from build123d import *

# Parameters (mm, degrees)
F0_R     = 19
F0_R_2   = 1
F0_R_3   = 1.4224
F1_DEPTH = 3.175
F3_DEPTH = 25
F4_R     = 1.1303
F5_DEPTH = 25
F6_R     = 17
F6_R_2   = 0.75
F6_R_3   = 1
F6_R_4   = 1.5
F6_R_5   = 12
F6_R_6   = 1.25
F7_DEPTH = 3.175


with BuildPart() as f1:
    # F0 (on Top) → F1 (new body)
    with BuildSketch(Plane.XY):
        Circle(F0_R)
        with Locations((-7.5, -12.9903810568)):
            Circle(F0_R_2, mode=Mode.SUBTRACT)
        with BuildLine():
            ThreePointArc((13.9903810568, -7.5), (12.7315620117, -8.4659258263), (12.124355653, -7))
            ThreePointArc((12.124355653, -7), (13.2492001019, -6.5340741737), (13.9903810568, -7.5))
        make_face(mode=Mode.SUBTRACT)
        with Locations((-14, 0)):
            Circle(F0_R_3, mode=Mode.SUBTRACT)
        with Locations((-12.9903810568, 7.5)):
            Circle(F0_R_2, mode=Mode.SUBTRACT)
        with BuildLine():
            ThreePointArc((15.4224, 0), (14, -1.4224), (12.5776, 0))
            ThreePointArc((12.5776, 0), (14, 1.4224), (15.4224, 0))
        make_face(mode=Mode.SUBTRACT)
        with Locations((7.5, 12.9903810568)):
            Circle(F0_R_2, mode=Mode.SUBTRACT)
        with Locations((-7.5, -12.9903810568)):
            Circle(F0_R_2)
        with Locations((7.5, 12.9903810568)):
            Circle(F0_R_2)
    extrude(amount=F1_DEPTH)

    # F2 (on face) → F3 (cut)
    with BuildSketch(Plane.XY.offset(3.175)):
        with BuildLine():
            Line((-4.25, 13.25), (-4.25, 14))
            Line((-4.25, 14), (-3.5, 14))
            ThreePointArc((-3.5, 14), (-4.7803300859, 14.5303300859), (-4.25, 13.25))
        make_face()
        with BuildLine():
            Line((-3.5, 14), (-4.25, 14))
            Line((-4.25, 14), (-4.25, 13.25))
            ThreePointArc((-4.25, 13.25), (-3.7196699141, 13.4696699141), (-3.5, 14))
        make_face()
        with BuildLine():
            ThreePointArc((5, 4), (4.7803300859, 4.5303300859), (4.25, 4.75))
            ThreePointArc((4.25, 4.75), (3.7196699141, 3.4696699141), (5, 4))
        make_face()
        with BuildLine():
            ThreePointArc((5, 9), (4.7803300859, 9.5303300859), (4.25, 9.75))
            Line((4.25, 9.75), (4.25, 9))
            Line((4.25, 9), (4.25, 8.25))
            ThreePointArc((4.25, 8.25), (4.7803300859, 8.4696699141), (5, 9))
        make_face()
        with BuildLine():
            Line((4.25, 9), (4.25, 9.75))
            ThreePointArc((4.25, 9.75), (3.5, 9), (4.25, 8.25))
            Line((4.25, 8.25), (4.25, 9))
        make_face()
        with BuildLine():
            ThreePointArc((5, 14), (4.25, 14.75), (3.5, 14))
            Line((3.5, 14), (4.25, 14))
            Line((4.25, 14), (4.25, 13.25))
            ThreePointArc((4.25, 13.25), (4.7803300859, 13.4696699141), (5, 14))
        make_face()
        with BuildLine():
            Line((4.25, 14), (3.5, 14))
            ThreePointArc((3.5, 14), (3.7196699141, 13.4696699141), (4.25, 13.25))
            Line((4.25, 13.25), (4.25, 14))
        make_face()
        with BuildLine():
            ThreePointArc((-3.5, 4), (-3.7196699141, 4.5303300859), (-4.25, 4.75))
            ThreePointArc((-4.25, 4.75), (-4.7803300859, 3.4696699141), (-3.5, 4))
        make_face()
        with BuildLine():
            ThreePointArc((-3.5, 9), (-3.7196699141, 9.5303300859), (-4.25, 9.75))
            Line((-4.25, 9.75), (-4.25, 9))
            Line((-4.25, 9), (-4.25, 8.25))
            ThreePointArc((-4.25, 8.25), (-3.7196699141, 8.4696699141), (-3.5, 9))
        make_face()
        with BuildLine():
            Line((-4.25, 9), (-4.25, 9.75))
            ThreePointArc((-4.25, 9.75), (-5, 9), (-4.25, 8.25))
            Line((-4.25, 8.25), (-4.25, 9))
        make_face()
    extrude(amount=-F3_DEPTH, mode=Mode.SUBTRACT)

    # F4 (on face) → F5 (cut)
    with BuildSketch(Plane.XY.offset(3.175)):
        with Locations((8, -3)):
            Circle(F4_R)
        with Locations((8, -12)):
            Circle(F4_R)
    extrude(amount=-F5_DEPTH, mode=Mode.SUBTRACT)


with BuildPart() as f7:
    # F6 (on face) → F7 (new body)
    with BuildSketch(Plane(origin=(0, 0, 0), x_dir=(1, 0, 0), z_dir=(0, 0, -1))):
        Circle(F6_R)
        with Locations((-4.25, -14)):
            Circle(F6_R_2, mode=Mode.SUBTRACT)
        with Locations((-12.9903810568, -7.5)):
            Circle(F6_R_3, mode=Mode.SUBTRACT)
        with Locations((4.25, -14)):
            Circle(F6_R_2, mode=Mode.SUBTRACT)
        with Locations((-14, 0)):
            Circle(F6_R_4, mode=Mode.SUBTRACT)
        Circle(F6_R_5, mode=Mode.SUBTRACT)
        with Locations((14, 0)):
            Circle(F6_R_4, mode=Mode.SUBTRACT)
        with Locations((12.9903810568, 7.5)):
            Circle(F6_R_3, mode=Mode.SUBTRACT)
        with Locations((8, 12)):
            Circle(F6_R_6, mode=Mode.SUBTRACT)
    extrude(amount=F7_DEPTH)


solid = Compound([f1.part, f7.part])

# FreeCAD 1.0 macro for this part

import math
import FreeCAD as App
import Part
import Sketcher
Q = App.Units.Quantity

doc = App.newDocument("Part")
body = doc.addObject("PartDesign::Body", "Body")

# Sketch on XY plane
sketch1 = body.newObject("Sketcher::SketchObject", "Sketch")
sketch1.AttachmentSupport = (doc.getObject("XY_Plane"), [""])
sketch1.MapMode = "FlatFace"
sketch1.addGeometry(Part.Circle(App.Vector(0, 0, 0), App.Vector(0, 0, 1), 19), False)
sketch1.addGeometry(Part.ArcOfCircle(Part.Circle(App.Vector(13, -7.5, 0), App.Vector(0, 0, 1), 1), math.radians(0), math.radians(150)), False)
sketch1.addGeometry(Part.ArcOfCircle(Part.Circle(App.Vector(13, -7.5, 0), App.Vector(0, 0, 1), 1), math.radians(150), math.radians(360)), False)
sketch1.addGeometry(Part.Circle(App.Vector(-14, 0, 0), App.Vector(0, 0, 1), 1.4), False)
sketch1.addGeometry(Part.Circle(App.Vector(-13, 7.5, 0), App.Vector(0, 0, 1), 1), False)
sketch1.addGeometry(Part.Circle(App.Vector(14, 0, 0), App.Vector(0, 0, 1), 1.4), False)
sketch1.addConstraint(Sketcher.Constraint("Tangent", 1, 1, 2, 2))
sketch1.addConstraint(Sketcher.Constraint("Coincident", 2, 1, 1, 2))
sketch1.addConstraint(Sketcher.Constraint("Coincident", 0, 3, -1, 1))
sketch1.addConstraint(Sketcher.Constraint("Equal", 2, 4))
sketch1.addConstraint(Sketcher.Constraint("Equal", 3, 5))
sketch1.addConstraint(Sketcher.Constraint("Symmetric", 1, 3, 4, 3, -1, 1))
sketch1.addConstraint(Sketcher.Constraint("Symmetric", 3, 3, 5, 3, -1, 1))
sketch1.addConstraint(Sketcher.Constraint("PointOnObject", 3, 3, -1))
sketch1.addConstraint(Sketcher.Constraint("Horizontal", 2, 3, 1, 1))
sketch1.addConstraint(Sketcher.Constraint("Diameter", 0, Q("38 mm")))
sketch1.addConstraint(Sketcher.Constraint("Diameter", 4, Q("2 mm")))
sketch1.addConstraint(Sketcher.Constraint("DistanceX", 3, 3, -1, 1, Q("14 mm")))
sketch1.addConstraint(Sketcher.Constraint("DistanceY", 2, 1, -1, 1, Q("7 mm")))
sketch1.addConstraint(Sketcher.Constraint("DistanceY", 1, 3, 4, 3, Q("15 mm")))
sketch1.addConstraint(Sketcher.Constraint("Diameter", 3, Q("2.8448 mm")))
sketch1.addConstraint(Sketcher.Constraint("DistanceX", -1, 1, 1, 3, Q("12.990381 mm")))
pad1 = body.newObject("PartDesign::Pad", "Pad")
pad1.Profile = sketch1
pad1.Length = 3.175

# Sketch on XY plane
sketch2 = body.newObject("Sketcher::SketchObject", "Sketch001")
sketch2.AttachmentSupport = (doc.getObject("XY_Plane"), [""])
sketch2.MapMode = "FlatFace"
sketch2.AttachmentOffset = App.Placement(App.Vector(0, 0, 3.175), App.Rotation())
sketch2.addGeometry(Part.ArcOfCircle(Part.Circle(App.Vector(-4.2, 14, 0), App.Vector(0, 0, 1), 0.8), math.radians(0), math.radians(270)), False)
sketch2.addGeometry(Part.ArcOfCircle(Part.Circle(App.Vector(-4.2, 14, 0), App.Vector(0, 0, 1), 0.8), math.radians(-90), math.radians(0)), False)
sketch2.addGeometry(Part.ArcOfCircle(Part.Circle(App.Vector(4.2, 4, 0), App.Vector(0, 0, 1), 0.8), math.radians(0), math.radians(90)), False)
sketch2.addGeometry(Part.ArcOfCircle(Part.Circle(App.Vector(4.2, 4, 0), App.Vector(0, 0, 1), 0.8), math.radians(90), math.radians(360)), False)
sketch2.addGeometry(Part.ArcOfCircle(Part.Circle(App.Vector(4.2, 9, 0), App.Vector(0, 0, 1), 0.8), math.radians(0), math.radians(90)), False)
sketch2.addGeometry(Part.ArcOfCircle(Part.Circle(App.Vector(4.2, 9, 0), App.Vector(0, 0, 1), 0.8), math.radians(90), math.radians(270)), False)
sketch2.addGeometry(Part.ArcOfCircle(Part.Circle(App.Vector(4.2, 9, 0), App.Vector(0, 0, 1), 0.8), math.radians(-90), math.radians(0)), False)
sketch2.addGeometry(Part.ArcOfCircle(Part.Circle(App.Vector(4.2, 14, 0), App.Vector(0, 0, 1), 0.8), math.radians(0), math.radians(180)), False)
sketch2.addGeometry(Part.ArcOfCircle(Part.Circle(App.Vector(4.2, 14, 0), App.Vector(0, 0, 1), 0.8), math.radians(180), math.radians(270)), False)
sketch2.addGeometry(Part.ArcOfCircle(Part.Circle(App.Vector(4.2, 14, 0), App.Vector(0, 0, 1), 0.8), math.radians(-90), math.radians(0)), False)
sketch2.addGeometry(Part.ArcOfCircle(Part.Circle(App.Vector(-4.2, 4, 0), App.Vector(0, 0, 1), 0.8), math.radians(0), math.radians(90)), False)
sketch2.addGeometry(Part.ArcOfCircle(Part.Circle(App.Vector(-4.2, 4, 0), App.Vector(0, 0, 1), 0.8), math.radians(90), math.radians(360)), False)
sketch2.addGeometry(Part.ArcOfCircle(Part.Circle(App.Vector(-4.2, 9, 0), App.Vector(0, 0, 1), 0.8), math.radians(0), math.radians(90)), False)
sketch2.addGeometry(Part.ArcOfCircle(Part.Circle(App.Vector(-4.2, 9, 0), App.Vector(0, 0, 1), 0.8), math.radians(90), math.radians(270)), False)
sketch2.addGeometry(Part.ArcOfCircle(Part.Circle(App.Vector(-4.2, 9, 0), App.Vector(0, 0, 1), 0.8), math.radians(-90), math.radians(0)), False)
sketch2.addConstraint(Sketcher.Constraint("Tangent", 0, 1, 1, 2))
sketch2.addConstraint(Sketcher.Constraint("Coincident", 1, 1, 0, 2))
sketch2.addConstraint(Sketcher.Constraint("Tangent", 2, 1, 3, 2))
sketch2.addConstraint(Sketcher.Constraint("Coincident", 3, 1, 2, 2))
sketch2.addConstraint(Sketcher.Constraint("Tangent", 4, 2, 5, 1))
sketch2.addConstraint(Sketcher.Constraint("Tangent", 5, 2, 6, 1))
sketch2.addConstraint(Sketcher.Constraint("Tangent", 6, 2, 4, 1))
sketch2.addConstraint(Sketcher.Constraint("Tangent", 7, 2, 8, 1))
sketch2.addConstraint(Sketcher.Constraint("Tangent", 8, 2, 9, 1))
sketch2.addConstraint(Sketcher.Constraint("Tangent", 9, 2, 7, 1))
sketch2.addConstraint(Sketcher.Constraint("Tangent", 10, 1, 11, 2))
sketch2.addConstraint(Sketcher.Constraint("Coincident", 11, 1, 10, 2))
sketch2.addConstraint(Sketcher.Constraint("Tangent", 12, 2, 13, 1))
sketch2.addConstraint(Sketcher.Constraint("Tangent", 13, 2, 14, 1))
sketch2.addConstraint(Sketcher.Constraint("Tangent", 14, 2, 12, 1))
sketch2.addConstraint(Sketcher.Constraint("Equal", 1, 2))
sketch2.addConstraint(Sketcher.Constraint("Equal", 3, 4))
sketch2.addConstraint(Sketcher.Constraint("Equal", 6, 7))
sketch2.addConstraint(Sketcher.Constraint("Equal", 9, 10))
sketch2.addConstraint(Sketcher.Constraint("Equal", 11, 12))
sketch2.addConstraint(Sketcher.Constraint("Symmetric", 0, 3, 7, 3, -2))
sketch2.addConstraint(Sketcher.Constraint("Symmetric", 2, 3, 10, 3, -2))
sketch2.addConstraint(Sketcher.Constraint("Symmetric", 4, 3, 12, 3, -2))
sketch2.addConstraint(Sketcher.Constraint("Horizontal", 9, 3, 0, 1))
sketch2.addConstraint(Sketcher.Constraint("Horizontal", 11, 3, 2, 1))
sketch2.addConstraint(Sketcher.Constraint("Horizontal", 14, 3, 6, 2))
sketch2.addConstraint(Sketcher.Constraint("Horizontal", 0, 1, 7, 2))
sketch2.addConstraint(Sketcher.Constraint("Horizontal", 7, 2, 9, 2))
sketch2.addConstraint(Sketcher.Constraint("Horizontal", 2, 1, 10, 1))
sketch2.addConstraint(Sketcher.Constraint("Horizontal", 6, 2, 14, 2))
sketch2.addConstraint(Sketcher.Constraint("Vertical", 3, 3, 4, 3))
sketch2.addConstraint(Sketcher.Constraint("Vertical", 6, 3, 7, 3))
sketch2.addConstraint(Sketcher.Constraint("Vertical", 14, 3, 1, 1))
sketch2.addConstraint(Sketcher.Constraint("Vertical", 9, 3, 3, 1))
sketch2.addConstraint(Sketcher.Constraint("Vertical", 3, 1, 4, 2))
sketch2.addConstraint(Sketcher.Constraint("Vertical", 4, 2, 5, 2))
sketch2.addConstraint(Sketcher.Constraint("Vertical", 5, 2, 8, 2))
sketch2.addConstraint(Sketcher.Constraint("Vertical", 1, 1, 11, 1))
sketch2.addConstraint(Sketcher.Constraint("Vertical", 11, 1, 12, 2))
sketch2.addConstraint(Sketcher.Constraint("Vertical", 12, 2, 13, 2))
sketch2.addConstraint(Sketcher.Constraint("Radius", 0, Q("0.75 mm")))
sketch2.addConstraint(Sketcher.Constraint("DistanceY", -1, 1, 0, 3, Q("14 mm")))
sketch2.addConstraint(Sketcher.Constraint("DistanceY", -1, 1, 2, 3, Q("4 mm")))
sketch2.addConstraint(Sketcher.Constraint("DistanceY", -1, 1, 4, 3, Q("9 mm")))
sketch2.addConstraint(Sketcher.Constraint("DistanceX", -1, 1, 2, 1, Q("5 mm")))
pocket1 = body.newObject("PartDesign::Pocket", "Pocket")
pocket1.Profile = sketch2
pocket1.Length = 25

# Sketch on XY plane
sketch3 = body.newObject("Sketcher::SketchObject", "Sketch002")
sketch3.AttachmentSupport = (doc.getObject("XY_Plane"), [""])
sketch3.MapMode = "FlatFace"
sketch3.AttachmentOffset = App.Placement(App.Vector(0, 0, 3.175), App.Rotation())
sketch3.addGeometry(Part.Circle(App.Vector(8, -3, 0), App.Vector(0, 0, 1), 1.1), False)
sketch3.addGeometry(Part.Circle(App.Vector(8, -12, 0), App.Vector(0, 0, 1), 1.1), False)
sketch3.addConstraint(Sketcher.Constraint("Equal", 0, 1))
sketch3.addConstraint(Sketcher.Constraint("Vertical", 0, 3, 1, 3))
sketch3.addConstraint(Sketcher.Constraint("DistanceX", -1, 1, 0, 3, Q("8 mm")))
sketch3.addConstraint(Sketcher.Constraint("DistanceY", 0, 3, -1, 1, Q("3 mm")))
sketch3.addConstraint(Sketcher.Constraint("DistanceY", 1, 3, -1, 1, Q("12 mm")))
sketch3.addConstraint(Sketcher.Constraint("Diameter", 0, Q("2.2606 mm")))
pocket2 = body.newObject("PartDesign::Pocket", "Pocket001")
pocket2.Profile = sketch3
pocket2.Length = 25
body2 = doc.addObject("PartDesign::Body", "Body001")

# Sketch on XY plane
sketch4 = body2.newObject("Sketcher::SketchObject", "Sketch003")
sketch4.AttachmentSupport = (doc.getObject("XY_Plane001"), [""])
sketch4.MapMode = "FlatFace"
sketch4.addGeometry(Part.Circle(App.Vector(0, 0, 0), App.Vector(0, 0, 1), 17), False)
sketch4.addGeometry(Part.Circle(App.Vector(-4.2, 14, 0), App.Vector(0, 0, 1), 0.8), False)
sketch4.addGeometry(Part.Circle(App.Vector(-13, 7.5, 0), App.Vector(0, 0, 1), 1), False)
sketch4.addGeometry(Part.Circle(App.Vector(4.2, 14, 0), App.Vector(0, 0, 1), 0.8), False)
sketch4.addGeometry(Part.Circle(App.Vector(-14, 0, 0), App.Vector(0, 0, 1), 1.5), False)
sketch4.addGeometry(Part.Circle(App.Vector(0, 0, 0), App.Vector(0, 0, 1), 12), False)
sketch4.addGeometry(Part.Circle(App.Vector(14, 0, 0), App.Vector(0, 0, 1), 1.5), False)
sketch4.addGeometry(Part.Circle(App.Vector(13, -7.5, 0), App.Vector(0, 0, 1), 1), False)
sketch4.addGeometry(Part.Circle(App.Vector(8, -12, 0), App.Vector(0, 0, 1), 1.2), False)
sketch4.addConstraint(Sketcher.Constraint("Coincident", 0, 3, -1, 1))
sketch4.addConstraint(Sketcher.Constraint("Coincident", 5, 3, -1, 1))
sketch4.addConstraint(Sketcher.Constraint("Equal", 1, 3))
sketch4.addConstraint(Sketcher.Constraint("Equal", 4, 6))
sketch4.addConstraint(Sketcher.Constraint("Equal", 2, 7))
sketch4.addConstraint(Sketcher.Constraint("Symmetric", 4, 3, 6, 3, -1, 1))
sketch4.addConstraint(Sketcher.Constraint("Symmetric", 2, 3, 7, 3, -1, 1))
sketch4.addConstraint(Sketcher.Constraint("Symmetric", 1, 3, 3, 3, -2))
sketch4.addConstraint(Sketcher.Constraint("PointOnObject", 4, 3, -1))
sketch4.addConstraint(Sketcher.Constraint("Diameter", 0, Q("34 mm")))
sketch4.addConstraint(Sketcher.Constraint("Diameter", 2, Q("2 mm")))
sketch4.addConstraint(Sketcher.Constraint("Diameter", 4, Q("3 mm")))
sketch4.addConstraint(Sketcher.Constraint("Diameter", 5, Q("24 mm")))
sketch4.addConstraint(Sketcher.Constraint("Diameter", 1, Q("1.5 mm")))
sketch4.addConstraint(Sketcher.Constraint("Diameter", 8, Q("2.5 mm")))
sketch4.addConstraint(Sketcher.Constraint("DistanceY", -1, 1, 1, 3, Q("14 mm")))
sketch4.addConstraint(Sketcher.Constraint("DistanceX", 4, 3, -1, 1, Q("14 mm")))
sketch4.addConstraint(Sketcher.Constraint("DistanceX", -1, 1, 8, 3, Q("8 mm")))
sketch4.addConstraint(Sketcher.Constraint("DistanceY", 8, 3, -1, 1, Q("12 mm")))
sketch4.addConstraint(Sketcher.Constraint("DistanceY", -1, 1, 2, 3, Q("7.5 mm")))
sketch4.addConstraint(Sketcher.Constraint("DistanceX", 1, 3, 3, 3, Q("8.5 mm")))
sketch4.addConstraint(Sketcher.Constraint("DistanceX", 2, 3, -1, 1, Q("12.990381 mm")))
pad2 = body2.newObject("PartDesign::Pad", "Pad001")
pad2.Profile = sketch4
pad2.Length = 3.175
pad2.Reversed = True

doc.recompute()
